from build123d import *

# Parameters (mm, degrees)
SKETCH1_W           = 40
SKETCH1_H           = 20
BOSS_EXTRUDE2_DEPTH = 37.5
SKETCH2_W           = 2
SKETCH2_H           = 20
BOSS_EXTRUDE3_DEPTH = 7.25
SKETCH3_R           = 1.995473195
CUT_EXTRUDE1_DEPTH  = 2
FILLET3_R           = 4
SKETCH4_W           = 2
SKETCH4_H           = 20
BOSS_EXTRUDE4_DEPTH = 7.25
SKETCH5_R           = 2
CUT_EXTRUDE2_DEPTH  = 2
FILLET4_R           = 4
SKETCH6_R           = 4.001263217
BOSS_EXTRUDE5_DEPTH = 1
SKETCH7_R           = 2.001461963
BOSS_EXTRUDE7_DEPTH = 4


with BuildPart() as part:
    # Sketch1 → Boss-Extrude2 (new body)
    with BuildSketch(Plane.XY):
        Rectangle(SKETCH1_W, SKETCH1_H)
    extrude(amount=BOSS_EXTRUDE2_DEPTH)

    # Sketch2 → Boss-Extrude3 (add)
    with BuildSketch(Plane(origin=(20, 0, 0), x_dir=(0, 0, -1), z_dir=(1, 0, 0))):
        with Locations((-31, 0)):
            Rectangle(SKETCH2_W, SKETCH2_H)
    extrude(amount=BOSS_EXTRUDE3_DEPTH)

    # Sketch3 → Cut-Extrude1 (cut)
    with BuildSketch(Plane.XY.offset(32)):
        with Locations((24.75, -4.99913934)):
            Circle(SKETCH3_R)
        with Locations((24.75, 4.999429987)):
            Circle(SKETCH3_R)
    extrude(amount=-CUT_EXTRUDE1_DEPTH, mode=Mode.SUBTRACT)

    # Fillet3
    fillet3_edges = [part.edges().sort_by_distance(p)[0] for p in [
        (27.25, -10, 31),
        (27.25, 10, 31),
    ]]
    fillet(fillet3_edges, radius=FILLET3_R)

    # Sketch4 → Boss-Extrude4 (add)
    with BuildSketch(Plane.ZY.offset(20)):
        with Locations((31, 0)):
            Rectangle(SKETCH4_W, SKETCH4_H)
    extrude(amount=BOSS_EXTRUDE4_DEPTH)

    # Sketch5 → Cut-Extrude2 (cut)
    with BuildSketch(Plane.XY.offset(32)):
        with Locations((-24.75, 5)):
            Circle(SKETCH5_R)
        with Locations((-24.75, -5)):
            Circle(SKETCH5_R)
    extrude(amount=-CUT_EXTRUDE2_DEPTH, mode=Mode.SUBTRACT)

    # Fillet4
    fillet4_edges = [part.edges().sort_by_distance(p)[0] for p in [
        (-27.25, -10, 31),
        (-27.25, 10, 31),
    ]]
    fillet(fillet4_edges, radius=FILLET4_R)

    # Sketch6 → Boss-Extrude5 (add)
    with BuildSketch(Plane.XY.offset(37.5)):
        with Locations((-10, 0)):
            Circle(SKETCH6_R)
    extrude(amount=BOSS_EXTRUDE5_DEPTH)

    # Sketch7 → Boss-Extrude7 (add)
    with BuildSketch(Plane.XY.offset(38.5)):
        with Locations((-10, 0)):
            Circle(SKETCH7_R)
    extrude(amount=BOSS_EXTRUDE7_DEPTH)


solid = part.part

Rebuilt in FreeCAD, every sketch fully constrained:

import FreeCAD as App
import Part
import Sketcher
Q = App.Units.Quantity


def edges_at(feature, points):
    """Names of the edges that pass closest to the given points."""
    edges = feature.Shape.Edges
    near = lambda p: min(range(len(edges)), key=lambda i: edges[i].distToShape(Part.Vertex(*p))[0])
    return sorted({f"Edge{near(p) + 1}" for p in points})

doc = App.newDocument("Part")
body = doc.addObject("PartDesign::Body", "Body")

sketch1 = body.newObject("Sketcher::SketchObject", "Sketch")
sketch1.AttachmentSupport = (doc.getObject("XY_Plane"), [""])
sketch1.MapMode = "FlatFace"
sketch1.addGeometry([
    Part.LineSegment(App.Vector(-20, 10, 0), App.Vector(-20, -10, 0)),
    Part.LineSegment(App.Vector(-20, -10, 0), App.Vector(20, -10, 0)),
    Part.LineSegment(App.Vector(20, -10, 0), App.Vector(20, 10, 0)),
    Part.LineSegment(App.Vector(20, 10, 0), App.Vector(-20, 10, 0)),
], False)
sketch1.addConstraint([
    Sketcher.Constraint("Coincident", 0, 2, 1, 1),
    Sketcher.Constraint("Coincident", 1, 2, 2, 1),
    Sketcher.Constraint("Coincident", 2, 2, 3, 1),
    Sketcher.Constraint("Coincident", 3, 2, 0, 1),
    Sketcher.Constraint("Vertical", 0),
    Sketcher.Constraint("Horizontal", 1),
    Sketcher.Constraint("Vertical", 2),
    Sketcher.Constraint("Horizontal", 3),
    Sketcher.Constraint("Symmetric", 0, 2, 2, 2, -1, 1),
    Sketcher.Constraint("DistanceX", 1, 1, 1, 2, Q("40 mm")),
    Sketcher.Constraint("DistanceY", 0, 2, 0, 1, Q("20 mm")),
])
pad1 = body.newObject("PartDesign::Pad", "Pad")
pad1.Profile = sketch1
pad1.Length = 37.5

sketch2 = body.newObject("Sketcher::SketchObject", "Sketch001")
sketch2.AttachmentSupport = (doc.getObject("YZ_Plane"), [""])
sketch2.MapMode = "FlatFace"
sketch2.AttachmentOffset = App.Placement(App.Vector(0, 0, 20), App.Rotation())
sketch2.addGeometry([
    Part.LineSegment(App.Vector(10, 32, 0), App.Vector(-10, 32, 0)),
    Part.LineSegment(App.Vector(-10, 32, 0), App.Vector(-10, 30, 0)),
    Part.LineSegment(App.Vector(-10, 30, 0), App.Vector(10, 30, 0)),
    Part.LineSegment(App.Vector(10, 30, 0), App.Vector(10, 32, 0)),
], False)
sketch2.addConstraint([
    Sketcher.Constraint("Coincident", 0, 2, 1, 1),
    Sketcher.Constraint("Coincident", 1, 2, 2, 1),
    Sketcher.Constraint("Coincident", 2, 2, 3, 1),
    Sketcher.Constraint("Coincident", 3, 2, 0, 1),
    Sketcher.Constraint("Horizontal", 0),
    Sketcher.Constraint("Vertical", 1),
    Sketcher.Constraint("Horizontal", 2),
    Sketcher.Constraint("Vertical", 3),
    Sketcher.Constraint("DistanceX", 0, 2, 0, 1, Q("20 mm")),
    Sketcher.Constraint("DistanceY", 1, 2, 1, 1, Q("2 mm")),
    Sketcher.Constraint("DistanceX", 0, 2, -1, 1, Q("10 mm")),
    Sketcher.Constraint("DistanceY", -1, 1, 0, 2, Q("32 mm")),
])
pad2 = body.newObject("PartDesign::Pad", "Pad001")
pad2.Profile = sketch2
pad2.Length = 7.25

sketch3 = body.newObject("Sketcher::SketchObject", "Sketch002")
sketch3.AttachmentSupport = (doc.getObject("XY_Plane"), [""])
sketch3.MapMode = "FlatFace"
sketch3.AttachmentOffset = App.Placement(App.Vector(0, 0, 32), App.Rotation())
sketch3.addGeometry([
    Part.Circle(App.Vector(24.8, -5, 0), App.Vector(0, 0, 1), 2),
    Part.Circle(App.Vector(24.8, 5, 0), App.Vector(0, 0, 1), 2),
], False)
sketch3.addConstraint([
    Sketcher.Constraint("Equal", 0, 1),
    Sketcher.Constraint("Vertical", 0, 3, 1, 3),
    Sketcher.Constraint("DistanceX", -1, 1, 0, 3, Q("24.75 mm")),
    Sketcher.Constraint("Diameter", 0, Q("3.990946 mm")),
    Sketcher.Constraint("DistanceY", 0, 3, -1, 1, Q("4.999139 mm")),
    Sketcher.Constraint("DistanceY", -1, 1, 1, 3, Q("4.99943 mm")),
])
pocket1 = body.newObject("PartDesign::Pocket", "Pocket")
pocket1.Profile = sketch3
pocket1.Length = 2
doc.recompute()

fillet = body.newObject("PartDesign::Fillet", "Fillet")
fillet.Base = (pocket1, edges_at(pocket1, [(27.25, -10, 31), (27.25, 10, 31)]))
fillet.Radius = 4

sketch4 = body.newObject("Sketcher::SketchObject", "Sketch003")
sketch4.AttachmentSupport = (doc.getObject("YZ_Plane"), [""])
sketch4.MapMode = "FlatFace"
sketch4.AttachmentOffset = App.Placement(App.Vector(0, 0, -20), App.Rotation())
sketch4.addGeometry([
    Part.LineSegment(App.Vector(10, 30, 0), App.Vector(-10, 30, 0)),
    Part.LineSegment(App.Vector(-10, 30, 0), App.Vector(-10, 32, 0)),
    Part.LineSegment(App.Vector(-10, 32, 0), App.Vector(10, 32, 0)),
    Part.LineSegment(App.Vector(10, 32, 0), App.Vector(10, 30, 0)),
], False)
sketch4.addConstraint([
    Sketcher.Constraint("Coincident", 0, 2, 1, 1),
    Sketcher.Constraint("Coincident", 1, 2, 2, 1),
    Sketcher.Constraint("Coincident", 2, 2, 3, 1),
    Sketcher.Constraint("Coincident", 3, 2, 0, 1),
    Sketcher.Constraint("Horizontal", 0),
    Sketcher.Constraint("Vertical", 1),
    Sketcher.Constraint("Horizontal", 2),
    Sketcher.Constraint("Vertical", 3),
    Sketcher.Constraint("DistanceX", 0, 2, 0, 1, Q("20 mm")),
    Sketcher.Constraint("DistanceY", 1, 1, 1, 2, Q("2 mm")),
    Sketcher.Constraint("DistanceX", 0, 2, -1, 1, Q("10 mm")),
    Sketcher.Constraint("DistanceY", -1, 1, 0, 2, Q("30 mm")),
])
pad3 = body.newObject("PartDesign::Pad", "Pad002")
pad3.Profile = sketch4
pad3.Length = 7.25
pad3.Reversed = True

sketch5 = body.newObject("Sketcher::SketchObject", "Sketch004")
sketch5.AttachmentSupport = (doc.getObject("XY_Plane"), [""])
sketch5.MapMode = "FlatFace"
sketch5.AttachmentOffset = App.Placement(App.Vector(0, 0, 32), App.Rotation())
sketch5.addGeometry([
    Part.Circle(App.Vector(-24.8, 5, 0), App.Vector(0, 0, 1), 2),
    Part.Circle(App.Vector(-24.8, -5, 0), App.Vector(0, 0, 1), 2),
], False)
sketch5.addConstraint([
    Sketcher.Constraint("Equal", 0, 1),
    Sketcher.Constraint("Symmetric", 0, 3, 1, 3, -1),
    Sketcher.Constraint("Diameter", 0, Q("4 mm")),
    Sketcher.Constraint("DistanceY", -1, 1, 0, 3, Q("5 mm")),
    Sketcher.Constraint("DistanceX", 0, 3, -1, 1, Q("24.75 mm")),
])
pocket2 = body.newObject("PartDesign::Pocket", "Pocket001")
pocket2.Profile = sketch5
pocket2.Length = 2
doc.recompute()

fillet2 = body.newObject("PartDesign::Fillet", "Fillet001")
fillet2.Base = (pocket2, edges_at(pocket2, [(-27.25, -10, 31), (-27.25, 10, 31)]))
fillet2.Radius = 4

sketch6 = body.newObject("Sketcher::SketchObject", "Sketch005")
sketch6.AttachmentSupport = (doc.getObject("XY_Plane"), [""])
sketch6.MapMode = "FlatFace"
sketch6.AttachmentOffset = App.Placement(App.Vector(0, 0, 37.5), App.Rotation())
sketch6.addGeometry(Part.Circle(App.Vector(-10, 0, 0), App.Vector(0, 0, 1), 4), False)
sketch6.addConstraint([
    Sketcher.Constraint("PointOnObject", 0, 3, -1),
    Sketcher.Constraint("DistanceX", 0, 3, -1, 1, Q("10 mm")),
    Sketcher.Constraint("Diameter", 0, Q("8.002526 mm")),
])
pad4 = body.newObject("PartDesign::Pad", "Pad003")
pad4.Profile = sketch6
pad4.Length = 1

sketch7 = body.newObject("Sketcher::SketchObject", "Sketch006")
sketch7.AttachmentSupport = (doc.getObject("XY_Plane"), [""])
sketch7.MapMode = "FlatFace"
sketch7.AttachmentOffset = App.Placement(App.Vector(0, 0, 38.5), App.Rotation())
sketch7.addGeometry(Part.Circle(App.Vector(-10, 0, 0), App.Vector(0, 0, 1), 2), False)
sketch7.addConstraint([
    Sketcher.Constraint("PointOnObject", 0, 3, -1),
    Sketcher.Constraint("DistanceX", 0, 3, -1, 1, Q("10 mm")),
    Sketcher.Constraint("Diameter", 0, Q("4.002924 mm")),
])
pad5 = body.newObject("PartDesign::Pad", "Pad004")
pad5.Profile = sketch7
pad5.Length = 4

doc.recompute()
